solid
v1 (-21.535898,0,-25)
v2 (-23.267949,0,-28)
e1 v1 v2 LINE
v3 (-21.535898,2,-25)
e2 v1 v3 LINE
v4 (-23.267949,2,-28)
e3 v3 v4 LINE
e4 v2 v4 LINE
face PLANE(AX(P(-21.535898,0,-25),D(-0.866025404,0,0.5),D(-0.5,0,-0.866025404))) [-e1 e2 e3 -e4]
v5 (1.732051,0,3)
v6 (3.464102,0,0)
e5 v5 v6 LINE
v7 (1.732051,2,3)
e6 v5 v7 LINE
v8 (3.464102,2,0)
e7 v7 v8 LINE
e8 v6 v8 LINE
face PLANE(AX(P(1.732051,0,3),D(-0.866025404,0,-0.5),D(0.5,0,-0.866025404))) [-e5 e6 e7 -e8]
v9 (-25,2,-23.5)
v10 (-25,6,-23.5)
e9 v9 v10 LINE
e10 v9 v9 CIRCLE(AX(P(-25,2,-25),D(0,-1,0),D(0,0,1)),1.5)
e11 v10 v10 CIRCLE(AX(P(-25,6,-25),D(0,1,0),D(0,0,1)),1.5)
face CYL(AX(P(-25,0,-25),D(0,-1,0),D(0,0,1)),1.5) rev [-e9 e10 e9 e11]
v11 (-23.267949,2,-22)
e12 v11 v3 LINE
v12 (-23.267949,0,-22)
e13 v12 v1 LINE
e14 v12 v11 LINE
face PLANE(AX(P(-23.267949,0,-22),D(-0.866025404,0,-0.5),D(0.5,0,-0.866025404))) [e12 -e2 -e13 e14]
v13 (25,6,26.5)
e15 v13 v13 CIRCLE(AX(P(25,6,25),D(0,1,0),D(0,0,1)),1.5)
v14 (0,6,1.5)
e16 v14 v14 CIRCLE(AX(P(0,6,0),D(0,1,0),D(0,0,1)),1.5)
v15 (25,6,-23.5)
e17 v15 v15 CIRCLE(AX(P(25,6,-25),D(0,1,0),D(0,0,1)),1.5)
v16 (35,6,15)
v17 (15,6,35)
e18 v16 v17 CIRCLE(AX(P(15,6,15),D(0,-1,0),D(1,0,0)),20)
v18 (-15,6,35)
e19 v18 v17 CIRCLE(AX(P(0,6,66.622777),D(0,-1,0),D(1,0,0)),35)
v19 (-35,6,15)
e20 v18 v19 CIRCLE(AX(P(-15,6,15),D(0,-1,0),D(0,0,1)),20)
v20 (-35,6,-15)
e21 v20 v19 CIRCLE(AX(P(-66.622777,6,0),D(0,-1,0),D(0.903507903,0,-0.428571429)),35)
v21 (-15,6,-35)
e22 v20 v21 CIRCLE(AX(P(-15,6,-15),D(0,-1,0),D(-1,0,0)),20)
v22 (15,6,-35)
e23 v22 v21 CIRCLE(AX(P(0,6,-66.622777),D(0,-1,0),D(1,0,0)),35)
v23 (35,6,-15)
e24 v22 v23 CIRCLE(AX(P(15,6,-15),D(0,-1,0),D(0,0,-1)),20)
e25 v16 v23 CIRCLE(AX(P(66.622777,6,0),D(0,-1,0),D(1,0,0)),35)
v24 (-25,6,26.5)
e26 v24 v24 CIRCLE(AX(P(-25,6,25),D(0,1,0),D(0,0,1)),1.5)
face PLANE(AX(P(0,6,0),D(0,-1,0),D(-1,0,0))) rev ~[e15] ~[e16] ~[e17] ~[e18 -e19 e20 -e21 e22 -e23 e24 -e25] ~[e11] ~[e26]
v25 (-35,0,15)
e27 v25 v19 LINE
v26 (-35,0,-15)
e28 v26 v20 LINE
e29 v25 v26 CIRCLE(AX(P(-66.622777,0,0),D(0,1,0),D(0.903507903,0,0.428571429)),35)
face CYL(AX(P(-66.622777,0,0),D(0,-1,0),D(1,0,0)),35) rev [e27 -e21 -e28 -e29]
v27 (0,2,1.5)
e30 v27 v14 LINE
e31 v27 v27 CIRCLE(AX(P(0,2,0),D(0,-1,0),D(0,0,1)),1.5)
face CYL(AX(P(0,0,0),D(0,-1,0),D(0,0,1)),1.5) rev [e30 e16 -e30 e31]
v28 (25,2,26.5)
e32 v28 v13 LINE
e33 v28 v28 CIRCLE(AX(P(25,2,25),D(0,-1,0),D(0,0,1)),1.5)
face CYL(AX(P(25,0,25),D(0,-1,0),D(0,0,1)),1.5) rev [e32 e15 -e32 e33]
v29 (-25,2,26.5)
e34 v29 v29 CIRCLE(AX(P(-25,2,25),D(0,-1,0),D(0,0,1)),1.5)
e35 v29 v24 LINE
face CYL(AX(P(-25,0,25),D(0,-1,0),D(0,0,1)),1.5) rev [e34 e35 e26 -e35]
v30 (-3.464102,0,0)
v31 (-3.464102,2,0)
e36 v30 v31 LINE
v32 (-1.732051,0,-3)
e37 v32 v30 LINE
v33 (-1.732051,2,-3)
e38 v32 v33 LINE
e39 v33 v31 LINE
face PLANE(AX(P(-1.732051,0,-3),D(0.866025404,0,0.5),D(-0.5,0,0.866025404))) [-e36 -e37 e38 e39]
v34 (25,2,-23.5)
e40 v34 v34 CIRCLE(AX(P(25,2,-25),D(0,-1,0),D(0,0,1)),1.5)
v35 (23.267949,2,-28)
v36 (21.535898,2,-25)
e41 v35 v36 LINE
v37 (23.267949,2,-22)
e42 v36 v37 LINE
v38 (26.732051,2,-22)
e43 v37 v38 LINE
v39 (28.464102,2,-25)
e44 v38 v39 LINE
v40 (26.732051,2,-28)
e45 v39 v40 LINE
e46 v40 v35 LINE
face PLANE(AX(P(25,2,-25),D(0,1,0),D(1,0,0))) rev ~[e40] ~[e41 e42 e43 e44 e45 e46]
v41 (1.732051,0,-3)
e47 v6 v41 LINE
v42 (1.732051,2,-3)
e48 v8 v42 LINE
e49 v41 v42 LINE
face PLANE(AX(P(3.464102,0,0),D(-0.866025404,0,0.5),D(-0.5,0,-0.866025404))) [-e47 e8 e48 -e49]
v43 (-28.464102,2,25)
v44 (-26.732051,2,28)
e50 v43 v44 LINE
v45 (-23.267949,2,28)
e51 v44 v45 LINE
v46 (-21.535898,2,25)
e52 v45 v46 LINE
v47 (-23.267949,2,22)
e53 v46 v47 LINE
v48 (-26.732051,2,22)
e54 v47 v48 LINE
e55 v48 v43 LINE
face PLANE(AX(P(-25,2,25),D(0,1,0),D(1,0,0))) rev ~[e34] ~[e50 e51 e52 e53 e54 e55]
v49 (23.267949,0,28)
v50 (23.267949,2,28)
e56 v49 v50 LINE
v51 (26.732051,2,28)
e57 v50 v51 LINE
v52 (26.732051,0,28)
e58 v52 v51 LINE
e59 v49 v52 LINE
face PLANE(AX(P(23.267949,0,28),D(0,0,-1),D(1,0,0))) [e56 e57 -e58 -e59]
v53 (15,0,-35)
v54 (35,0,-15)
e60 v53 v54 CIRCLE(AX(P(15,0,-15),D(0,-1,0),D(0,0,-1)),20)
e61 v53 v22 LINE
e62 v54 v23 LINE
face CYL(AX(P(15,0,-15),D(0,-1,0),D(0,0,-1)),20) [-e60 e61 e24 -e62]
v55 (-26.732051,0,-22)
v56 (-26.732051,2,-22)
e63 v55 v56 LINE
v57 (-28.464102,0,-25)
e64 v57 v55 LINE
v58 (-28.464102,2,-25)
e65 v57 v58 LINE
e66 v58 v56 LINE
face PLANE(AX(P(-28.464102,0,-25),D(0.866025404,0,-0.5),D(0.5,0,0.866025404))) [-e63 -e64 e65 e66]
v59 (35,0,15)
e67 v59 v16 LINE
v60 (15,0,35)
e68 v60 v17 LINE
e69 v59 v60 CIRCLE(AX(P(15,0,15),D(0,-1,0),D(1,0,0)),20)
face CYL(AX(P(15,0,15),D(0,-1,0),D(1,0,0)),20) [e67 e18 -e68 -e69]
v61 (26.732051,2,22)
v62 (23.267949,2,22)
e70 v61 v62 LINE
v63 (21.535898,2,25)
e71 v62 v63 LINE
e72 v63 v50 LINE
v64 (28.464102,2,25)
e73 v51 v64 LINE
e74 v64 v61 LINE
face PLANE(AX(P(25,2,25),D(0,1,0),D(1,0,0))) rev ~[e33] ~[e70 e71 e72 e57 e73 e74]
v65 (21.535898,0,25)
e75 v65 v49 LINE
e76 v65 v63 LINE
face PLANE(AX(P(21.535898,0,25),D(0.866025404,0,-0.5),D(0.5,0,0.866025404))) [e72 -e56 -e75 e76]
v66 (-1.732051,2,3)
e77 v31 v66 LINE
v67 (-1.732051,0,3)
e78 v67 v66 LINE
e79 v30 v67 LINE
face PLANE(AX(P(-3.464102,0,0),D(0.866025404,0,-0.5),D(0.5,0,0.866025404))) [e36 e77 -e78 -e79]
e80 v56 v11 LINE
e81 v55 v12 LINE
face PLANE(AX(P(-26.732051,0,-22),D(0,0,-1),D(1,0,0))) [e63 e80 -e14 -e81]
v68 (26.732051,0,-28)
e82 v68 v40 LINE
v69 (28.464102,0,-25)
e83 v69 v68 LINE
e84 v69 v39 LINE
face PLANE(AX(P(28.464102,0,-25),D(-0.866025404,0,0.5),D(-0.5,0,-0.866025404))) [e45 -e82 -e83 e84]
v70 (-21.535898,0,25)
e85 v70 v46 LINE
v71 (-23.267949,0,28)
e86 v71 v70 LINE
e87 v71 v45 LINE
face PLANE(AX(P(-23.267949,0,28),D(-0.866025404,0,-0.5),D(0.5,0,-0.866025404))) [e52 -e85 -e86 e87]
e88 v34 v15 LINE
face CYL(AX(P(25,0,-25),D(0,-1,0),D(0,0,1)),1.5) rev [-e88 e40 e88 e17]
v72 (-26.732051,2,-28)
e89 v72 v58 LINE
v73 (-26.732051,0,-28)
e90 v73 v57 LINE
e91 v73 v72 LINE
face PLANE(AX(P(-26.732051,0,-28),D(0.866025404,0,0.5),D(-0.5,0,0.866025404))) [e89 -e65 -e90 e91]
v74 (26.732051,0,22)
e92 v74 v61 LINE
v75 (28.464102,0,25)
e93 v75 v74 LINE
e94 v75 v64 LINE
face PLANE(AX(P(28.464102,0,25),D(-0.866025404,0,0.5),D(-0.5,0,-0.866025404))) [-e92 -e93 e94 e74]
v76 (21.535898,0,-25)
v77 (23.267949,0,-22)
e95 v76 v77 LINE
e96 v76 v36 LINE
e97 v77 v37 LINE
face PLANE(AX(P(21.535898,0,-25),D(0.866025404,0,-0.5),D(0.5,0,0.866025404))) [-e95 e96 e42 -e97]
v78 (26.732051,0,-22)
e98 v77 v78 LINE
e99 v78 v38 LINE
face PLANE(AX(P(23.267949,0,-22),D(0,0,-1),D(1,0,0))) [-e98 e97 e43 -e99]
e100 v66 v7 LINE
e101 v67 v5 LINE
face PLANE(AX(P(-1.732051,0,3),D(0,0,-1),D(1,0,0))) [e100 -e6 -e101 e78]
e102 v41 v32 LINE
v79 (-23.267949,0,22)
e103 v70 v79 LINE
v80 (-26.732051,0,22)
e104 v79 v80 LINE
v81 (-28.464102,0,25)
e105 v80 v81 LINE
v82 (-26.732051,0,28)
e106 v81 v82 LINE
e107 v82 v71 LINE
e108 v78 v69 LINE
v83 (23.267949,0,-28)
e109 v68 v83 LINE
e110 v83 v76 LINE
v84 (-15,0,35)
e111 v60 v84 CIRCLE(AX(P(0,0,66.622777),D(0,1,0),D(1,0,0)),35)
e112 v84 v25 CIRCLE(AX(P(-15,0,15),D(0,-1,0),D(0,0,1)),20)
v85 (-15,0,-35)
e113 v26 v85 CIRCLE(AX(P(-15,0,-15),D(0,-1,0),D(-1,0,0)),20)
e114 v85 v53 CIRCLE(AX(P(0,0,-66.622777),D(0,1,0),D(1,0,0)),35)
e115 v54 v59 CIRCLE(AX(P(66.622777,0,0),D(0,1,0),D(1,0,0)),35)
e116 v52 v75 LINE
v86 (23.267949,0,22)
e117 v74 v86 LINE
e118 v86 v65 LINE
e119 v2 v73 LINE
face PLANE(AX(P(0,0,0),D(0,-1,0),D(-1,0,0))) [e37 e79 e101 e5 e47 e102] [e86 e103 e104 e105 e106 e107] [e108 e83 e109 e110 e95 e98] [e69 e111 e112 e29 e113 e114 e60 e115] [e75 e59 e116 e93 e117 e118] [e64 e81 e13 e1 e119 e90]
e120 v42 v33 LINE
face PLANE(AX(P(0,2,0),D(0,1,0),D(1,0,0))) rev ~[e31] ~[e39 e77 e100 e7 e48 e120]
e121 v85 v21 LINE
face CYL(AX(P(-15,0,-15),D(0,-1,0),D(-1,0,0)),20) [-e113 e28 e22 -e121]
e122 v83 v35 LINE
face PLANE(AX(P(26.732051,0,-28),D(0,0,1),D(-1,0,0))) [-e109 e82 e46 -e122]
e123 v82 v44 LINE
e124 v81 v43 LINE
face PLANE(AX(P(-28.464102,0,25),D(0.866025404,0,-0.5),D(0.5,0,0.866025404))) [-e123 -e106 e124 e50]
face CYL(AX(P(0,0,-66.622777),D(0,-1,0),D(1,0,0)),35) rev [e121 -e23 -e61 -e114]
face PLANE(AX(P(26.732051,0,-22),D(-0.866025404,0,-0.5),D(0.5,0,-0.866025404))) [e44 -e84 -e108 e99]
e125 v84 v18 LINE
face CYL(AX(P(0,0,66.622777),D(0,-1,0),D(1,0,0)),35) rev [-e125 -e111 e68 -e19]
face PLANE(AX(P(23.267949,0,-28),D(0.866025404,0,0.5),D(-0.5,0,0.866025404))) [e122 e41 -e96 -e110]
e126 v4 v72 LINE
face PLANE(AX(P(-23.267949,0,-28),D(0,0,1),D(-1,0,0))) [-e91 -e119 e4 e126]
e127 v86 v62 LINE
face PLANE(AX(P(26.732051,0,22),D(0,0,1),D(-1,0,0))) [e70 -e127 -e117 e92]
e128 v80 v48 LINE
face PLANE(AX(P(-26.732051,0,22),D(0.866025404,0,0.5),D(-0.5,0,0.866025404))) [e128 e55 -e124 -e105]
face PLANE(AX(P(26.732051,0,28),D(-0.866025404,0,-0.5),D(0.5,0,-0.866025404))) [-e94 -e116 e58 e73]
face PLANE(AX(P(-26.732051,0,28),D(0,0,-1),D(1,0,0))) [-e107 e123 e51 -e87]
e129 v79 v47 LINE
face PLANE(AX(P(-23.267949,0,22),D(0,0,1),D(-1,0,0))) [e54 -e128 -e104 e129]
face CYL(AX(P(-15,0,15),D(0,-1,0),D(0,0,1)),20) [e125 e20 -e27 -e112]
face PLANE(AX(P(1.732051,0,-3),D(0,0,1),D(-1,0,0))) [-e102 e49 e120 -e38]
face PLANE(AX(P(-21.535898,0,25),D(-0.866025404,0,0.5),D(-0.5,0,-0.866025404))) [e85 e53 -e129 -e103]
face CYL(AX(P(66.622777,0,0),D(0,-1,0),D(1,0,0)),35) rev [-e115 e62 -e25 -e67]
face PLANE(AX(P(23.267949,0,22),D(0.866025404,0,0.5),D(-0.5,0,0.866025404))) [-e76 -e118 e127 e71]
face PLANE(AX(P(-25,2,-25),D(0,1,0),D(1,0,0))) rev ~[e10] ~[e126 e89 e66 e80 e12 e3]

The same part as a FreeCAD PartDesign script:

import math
import FreeCAD as App
import Part
import Sketcher

V = App.Vector
Q = App.Units.Quantity


def add_polygon(sketch, points):
    """Adds a closed chain of lines whose ends are joined by coincident constraints."""
    first, n = sketch.GeometryCount, len(points)
    for a, b in zip(points, points[1:] + points[:1]):
        sketch.addGeometry(Part.LineSegment(App.Vector(*a, 0), App.Vector(*b, 0)), False)
    for i in range(n):
        sketch.addConstraint(Sketcher.Constraint("Coincident", first + i, 2, first + (i + 1) % n, 1))

doc = App.newDocument("Part")
params = doc.addObject("Spreadsheet::Sheet", "Params")
for row, (alias, value) in enumerate([
    ("sketch1_radius", "20 mm"),
    ("sketch1_width", "30 mm"),
    ("pad1_length", "6 mm"),
    ("sketch2_diameter", "3 mm"),
    ("pocket1_length", "6 mm"),
    ("pocket2_length", "2 mm"),
    ("sketch4_diameter", "70 mm"),
], start=1):
    params.set(f"A{row}", alias)
    params.set(f"B{row}", "=" + value)
    params.setAlias(f"B{row}", alias)

body = doc.addObject("PartDesign::Body", "Body")

# Sketch on XZ plane
sketch1 = body.newObject("Sketcher::SketchObject", "Sketch")
sketch1.AttachmentSupport = (doc.getObject("XZ_Plane"), [""])
sketch1.MapMode = "FlatFace"
sketch1.addGeometry([
    Part.LineSegment(V(-15, 35, 0), V(15, 35, 0)),  # 0
    Part.ArcOfCircle(Part.Circle(V(15, 15, 0), V(0, 0, 1), 20), math.radians(0), math.radians(90)),  # 1
    Part.LineSegment(V(35, 15, 0), V(35, -15, 0)),  # 2
    Part.ArcOfCircle(Part.Circle(V(15, -15, 0), V(0, 0, 1), 20), math.radians(-90), math.radians(0)),  # 3
    Part.LineSegment(V(15, -35, 0), V(-15, -35, 0)),  # 4
    Part.ArcOfCircle(Part.Circle(V(-15, -15, 0), V(0, 0, 1), 20), math.radians(180), math.radians(270)),  # 5
    Part.LineSegment(V(-35, -15, 0), V(-35, 15, 0)),  # 6
    Part.ArcOfCircle(Part.Circle(V(-15, 15, 0), V(0, 0, 1), 20), math.radians(90), math.radians(180)),  # 7
], False)
sketch1.addConstraint([
    Sketcher.Constraint("Tangent", 0, 2, 1, 2),
    Sketcher.Constraint("Tangent", 1, 1, 2, 1),
    Sketcher.Constraint("Tangent", 2, 2, 3, 2),
    Sketcher.Constraint("Tangent", 3, 1, 4, 1),
    Sketcher.Constraint("Tangent", 4, 2, 5, 2),
    Sketcher.Constraint("Tangent", 5, 1, 6, 1),
    Sketcher.Constraint("Tangent", 6, 2, 7, 2),
    Sketcher.Constraint("Tangent", 7, 1, 0, 1),
    Sketcher.Constraint("Horizontal", 0),
    Sketcher.Constraint("Vertical", 2),
    Sketcher.Constraint("Horizontal", 4),
    Sketcher.Constraint("Vertical", 6),
    Sketcher.Constraint("Equal", 1, 3),
    Sketcher.Constraint("Equal", 3, 5),
    Sketcher.Constraint("Equal", 5, 7),
    Sketcher.Constraint("Symmetric", 1, 3, 5, 3, -1, 1),
    Sketcher.Constraint("Equal", 4, 2),
    Sketcher.Constraint("Radius", 1, 20.0),
    Sketcher.Constraint("DistanceX", 0, 1, 0, 2, 30.0),
])
sketch1.setExpression("Constraints[17]", "Params.sketch1_radius")
sketch1.setExpression("Constraints[18]", "Params.sketch1_width")
pad1 = body.newObject("PartDesign::Pad", "Pad")
pad1.Profile = sketch1
pad1.setExpression("Length", "Params.pad1_length")
pad1.Reversed = True

# Sketch on XZ plane
sketch2 = body.newObject("Sketcher::SketchObject", "Sketch001")
sketch2.AttachmentSupport = (doc.getObject("XZ_Plane"), [""])
sketch2.MapMode = "FlatFace"
sketch2.addGeometry([
    Part.Circle(V(-25, -25, 0), V(0, 0, 1), 1.5),  # 0
    Part.Circle(V(25, -25, 0), V(0, 0, 1), 1.5),  # 1
    Part.Circle(V(25, 25, 0), V(0, 0, 1), 1.5),  # 2
    Part.Circle(V(-25, 25, 0), V(0, 0, 1), 1.5),  # 3
    Part.Circle(V(0, 0, 0), V(0, 0, 1), 1.5),  # 4
], False)
sketch2.addConstraint([
    Sketcher.Constraint("Coincident", 4, 3, -1, 1),
    Sketcher.Constraint("Equal", 0, 1),
    Sketcher.Constraint("Equal", 1, 2),
    Sketcher.Constraint("Equal", 2, 3),
    Sketcher.Constraint("Equal", 3, 4),
    Sketcher.Constraint("Symmetric", 0, 3, 2, 3, -1, 1),
    Sketcher.Constraint("Symmetric", 1, 3, 3, 3, -1, 1),
    Sketcher.Constraint("Symmetric", 0, 3, 1, 3, -2),
    Sketcher.Constraint("Diameter", 0, 3.0),
    Sketcher.Constraint("DistanceX", 0, 3, -1, 1, 25.0),
    Sketcher.Constraint("DistanceY", 0, 3, -1, 1, 25.0),
])
sketch2.setExpression("Constraints[8]", "Params.sketch2_diameter")
pocket1 = body.newObject("PartDesign::Pocket", "Pocket")
pocket1.Profile = sketch2
pocket1.setExpression("Length", "Params.pocket1_length")

# Sketch on XZ plane
sketch3 = body.newObject("Sketcher::SketchObject", "Sketch002")
sketch3.AttachmentSupport = (doc.getObject("XZ_Plane"), [""])
sketch3.MapMode = "FlatFace"
add_polygon(sketch3, [(-26.7, -28), (-28.5, -25), (-26.7, -22), (-23.3, -22), (-21.5, -25), (-23.3, -28)])  # lines 0-5
add_polygon(sketch3, [(23.3, -28), (21.5, -25), (23.3, -22), (26.7, -22), (28.5, -25), (26.7, -28)])  # lines 6-11
add_polygon(sketch3, [(23.3, 22), (21.5, 25), (23.3, 28), (26.7, 28), (28.5, 25), (26.7, 22)])  # lines 12-17
add_polygon(sketch3, [(-26.7, 22), (-28.5, 25), (-26.7, 28), (-23.3, 28), (-21.5, 25), (-23.3, 22)])  # lines 18-23
add_polygon(sketch3, [(-1.7, -3), (-3.5, 0), (-1.7, 3), (1.7, 3), (3.5, 0), (1.7, -3)])  # lines 24-29
sketch3.addConstraint([
    Sketcher.Constraint("Horizontal", 2),
    Sketcher.Constraint("Horizontal", 5),
    Sketcher.Constraint("Horizontal", 8),
    Sketcher.Constraint("Horizontal", 11),
    Sketcher.Constraint("Horizontal", 14),
    Sketcher.Constraint("Horizontal", 17),
    Sketcher.Constraint("Horizontal", 20),
    Sketcher.Constraint("Horizontal", 23),
    Sketcher.Constraint("Horizontal", 26),
    Sketcher.Constraint("Horizontal", 29),
    Sketcher.Constraint("Symmetric", 3, 2, 12, 2, -1, 1),
    Sketcher.Constraint("Symmetric", 4, 2, 13, 2, -1, 1),
    Sketcher.Constraint("Symmetric", 0, 2, 15, 2, -1, 1),
    Sketcher.Constraint("Symmetric", 1, 2, 16, 2, -1, 1),
    Sketcher.Constraint("Symmetric", 9, 2, 18, 2, -1, 1),
    Sketcher.Constraint("Symmetric", 10, 2, 19, 2, -1, 1),
    Sketcher.Constraint("Symmetric", 6, 2, 21, 2, -1, 1),
    Sketcher.Constraint("Symmetric", 7, 2, 22, 2, -1, 1),
    Sketcher.Constraint("Symmetric", 24, 2, 27, 2, -1, 1),
    Sketcher.Constraint("Symmetric", 25, 2, 28, 2, -1, 1),
    Sketcher.Constraint("Symmetric", 3, 2, 6, 2, -2),
    Sketcher.Constraint("Symmetric", 2, 2, 7, 2, -2),
    Sketcher.Constraint("Symmetric", 0, 2, 9, 2, -2),
    Sketcher.Constraint("Symmetric", 5, 2, 10, 2, -2),
    Sketcher.Constraint("PointOnObject", 24, 2, -1),
    Sketcher.Constraint("Parallel", 0, 3),
    Sketcher.Constraint("Parallel", 1, 4),
    Sketcher.Constraint("Parallel", 3, 6),
    Sketcher.Constraint("Parallel", 4, 7),
    Sketcher.Constraint("Parallel", 6, 9),
    Sketcher.Constraint("Parallel", 9, 12),
    Sketcher.Constraint("Parallel", 12, 15),
    Sketcher.Constraint("Parallel", 15, 18),
    Sketcher.Constraint("Parallel", 18, 21),
    Sketcher.Constraint("Parallel", 21, 24),
    Sketcher.Constraint("Parallel", 22, 25),
    Sketcher.Constraint("Parallel", 24, 27),
    Sketcher.Constraint("Horizontal", 0, 2, 3, 2),
    Sketcher.Constraint("Vertical", 2, 2, 4, 2),
    Sketcher.Constraint("Equal", 23, 26),
    Sketcher.Constraint("Equal", 22, 24),
    Sketcher.Constraint("Angle", 0, Q("120 deg")),
    Sketcher.Constraint("DistanceY", 0, 2, -1, 1, 25.0),
    Sketcher.Constraint("DistanceY", 1, 2, -1, 1, 22.0),
    Sketcher.Constraint("DistanceX", 1, 2, 7, 2, 50.0),
    Sketcher.Constraint("DistanceX", 2, 1, 2, 2, 3.464102),
])
pocket2 = body.newObject("PartDesign::Pocket", "Pocket001")
pocket2.Profile = sketch3
pocket2.setExpression("Length", "Params.pocket2_length")

# Sketch on XZ plane
sketch4 = body.newObject("Sketcher::SketchObject", "Sketch003")
sketch4.AttachmentSupport = (doc.getObject("XZ_Plane"), [""])
sketch4.MapMode = "FlatFace"
sketch4.addGeometry([
    Part.Circle(V(-67, 0, 0), V(0, 0, 1), 35),
    Part.Circle(V(0, -67, 0), V(0, 0, 1), 35),
    Part.Circle(V(67, 0, 0), V(0, 0, 1), 35),
    Part.Circle(V(0, 67, 0), V(0, 0, 1), 35),
], False)
sketch4.addConstraint([
    Sketcher.Constraint("Equal", 0, 1),
    Sketcher.Constraint("Equal", 1, 2),
    Sketcher.Constraint("Equal", 2, 3),
    Sketcher.Constraint("Symmetric", 0, 3, 2, 3, -1, 1),
    Sketcher.Constraint("Symmetric", 1, 3, 3, 3, -1, 1),
    Sketcher.Constraint("PointOnObject", 0, 3, -1),
    Sketcher.Constraint("PointOnObject", 1, 3, -2),
    Sketcher.Constraint("Diameter", 0, 70.0),
    Sketcher.Constraint("DistanceX", 0, 3, -1, 1, 66.622777),
    Sketcher.Constraint("DistanceY", 1, 3, -1, 1, 66.622777),
])
sketch4.setExpression("Constraints[7]", "Params.sketch4_diameter")
pocket3 = body.newObject("PartDesign::Pocket", "Pocket002")
pocket3.Profile = sketch4
pocket3.Type = "ThroughAll"

doc.recompute()
